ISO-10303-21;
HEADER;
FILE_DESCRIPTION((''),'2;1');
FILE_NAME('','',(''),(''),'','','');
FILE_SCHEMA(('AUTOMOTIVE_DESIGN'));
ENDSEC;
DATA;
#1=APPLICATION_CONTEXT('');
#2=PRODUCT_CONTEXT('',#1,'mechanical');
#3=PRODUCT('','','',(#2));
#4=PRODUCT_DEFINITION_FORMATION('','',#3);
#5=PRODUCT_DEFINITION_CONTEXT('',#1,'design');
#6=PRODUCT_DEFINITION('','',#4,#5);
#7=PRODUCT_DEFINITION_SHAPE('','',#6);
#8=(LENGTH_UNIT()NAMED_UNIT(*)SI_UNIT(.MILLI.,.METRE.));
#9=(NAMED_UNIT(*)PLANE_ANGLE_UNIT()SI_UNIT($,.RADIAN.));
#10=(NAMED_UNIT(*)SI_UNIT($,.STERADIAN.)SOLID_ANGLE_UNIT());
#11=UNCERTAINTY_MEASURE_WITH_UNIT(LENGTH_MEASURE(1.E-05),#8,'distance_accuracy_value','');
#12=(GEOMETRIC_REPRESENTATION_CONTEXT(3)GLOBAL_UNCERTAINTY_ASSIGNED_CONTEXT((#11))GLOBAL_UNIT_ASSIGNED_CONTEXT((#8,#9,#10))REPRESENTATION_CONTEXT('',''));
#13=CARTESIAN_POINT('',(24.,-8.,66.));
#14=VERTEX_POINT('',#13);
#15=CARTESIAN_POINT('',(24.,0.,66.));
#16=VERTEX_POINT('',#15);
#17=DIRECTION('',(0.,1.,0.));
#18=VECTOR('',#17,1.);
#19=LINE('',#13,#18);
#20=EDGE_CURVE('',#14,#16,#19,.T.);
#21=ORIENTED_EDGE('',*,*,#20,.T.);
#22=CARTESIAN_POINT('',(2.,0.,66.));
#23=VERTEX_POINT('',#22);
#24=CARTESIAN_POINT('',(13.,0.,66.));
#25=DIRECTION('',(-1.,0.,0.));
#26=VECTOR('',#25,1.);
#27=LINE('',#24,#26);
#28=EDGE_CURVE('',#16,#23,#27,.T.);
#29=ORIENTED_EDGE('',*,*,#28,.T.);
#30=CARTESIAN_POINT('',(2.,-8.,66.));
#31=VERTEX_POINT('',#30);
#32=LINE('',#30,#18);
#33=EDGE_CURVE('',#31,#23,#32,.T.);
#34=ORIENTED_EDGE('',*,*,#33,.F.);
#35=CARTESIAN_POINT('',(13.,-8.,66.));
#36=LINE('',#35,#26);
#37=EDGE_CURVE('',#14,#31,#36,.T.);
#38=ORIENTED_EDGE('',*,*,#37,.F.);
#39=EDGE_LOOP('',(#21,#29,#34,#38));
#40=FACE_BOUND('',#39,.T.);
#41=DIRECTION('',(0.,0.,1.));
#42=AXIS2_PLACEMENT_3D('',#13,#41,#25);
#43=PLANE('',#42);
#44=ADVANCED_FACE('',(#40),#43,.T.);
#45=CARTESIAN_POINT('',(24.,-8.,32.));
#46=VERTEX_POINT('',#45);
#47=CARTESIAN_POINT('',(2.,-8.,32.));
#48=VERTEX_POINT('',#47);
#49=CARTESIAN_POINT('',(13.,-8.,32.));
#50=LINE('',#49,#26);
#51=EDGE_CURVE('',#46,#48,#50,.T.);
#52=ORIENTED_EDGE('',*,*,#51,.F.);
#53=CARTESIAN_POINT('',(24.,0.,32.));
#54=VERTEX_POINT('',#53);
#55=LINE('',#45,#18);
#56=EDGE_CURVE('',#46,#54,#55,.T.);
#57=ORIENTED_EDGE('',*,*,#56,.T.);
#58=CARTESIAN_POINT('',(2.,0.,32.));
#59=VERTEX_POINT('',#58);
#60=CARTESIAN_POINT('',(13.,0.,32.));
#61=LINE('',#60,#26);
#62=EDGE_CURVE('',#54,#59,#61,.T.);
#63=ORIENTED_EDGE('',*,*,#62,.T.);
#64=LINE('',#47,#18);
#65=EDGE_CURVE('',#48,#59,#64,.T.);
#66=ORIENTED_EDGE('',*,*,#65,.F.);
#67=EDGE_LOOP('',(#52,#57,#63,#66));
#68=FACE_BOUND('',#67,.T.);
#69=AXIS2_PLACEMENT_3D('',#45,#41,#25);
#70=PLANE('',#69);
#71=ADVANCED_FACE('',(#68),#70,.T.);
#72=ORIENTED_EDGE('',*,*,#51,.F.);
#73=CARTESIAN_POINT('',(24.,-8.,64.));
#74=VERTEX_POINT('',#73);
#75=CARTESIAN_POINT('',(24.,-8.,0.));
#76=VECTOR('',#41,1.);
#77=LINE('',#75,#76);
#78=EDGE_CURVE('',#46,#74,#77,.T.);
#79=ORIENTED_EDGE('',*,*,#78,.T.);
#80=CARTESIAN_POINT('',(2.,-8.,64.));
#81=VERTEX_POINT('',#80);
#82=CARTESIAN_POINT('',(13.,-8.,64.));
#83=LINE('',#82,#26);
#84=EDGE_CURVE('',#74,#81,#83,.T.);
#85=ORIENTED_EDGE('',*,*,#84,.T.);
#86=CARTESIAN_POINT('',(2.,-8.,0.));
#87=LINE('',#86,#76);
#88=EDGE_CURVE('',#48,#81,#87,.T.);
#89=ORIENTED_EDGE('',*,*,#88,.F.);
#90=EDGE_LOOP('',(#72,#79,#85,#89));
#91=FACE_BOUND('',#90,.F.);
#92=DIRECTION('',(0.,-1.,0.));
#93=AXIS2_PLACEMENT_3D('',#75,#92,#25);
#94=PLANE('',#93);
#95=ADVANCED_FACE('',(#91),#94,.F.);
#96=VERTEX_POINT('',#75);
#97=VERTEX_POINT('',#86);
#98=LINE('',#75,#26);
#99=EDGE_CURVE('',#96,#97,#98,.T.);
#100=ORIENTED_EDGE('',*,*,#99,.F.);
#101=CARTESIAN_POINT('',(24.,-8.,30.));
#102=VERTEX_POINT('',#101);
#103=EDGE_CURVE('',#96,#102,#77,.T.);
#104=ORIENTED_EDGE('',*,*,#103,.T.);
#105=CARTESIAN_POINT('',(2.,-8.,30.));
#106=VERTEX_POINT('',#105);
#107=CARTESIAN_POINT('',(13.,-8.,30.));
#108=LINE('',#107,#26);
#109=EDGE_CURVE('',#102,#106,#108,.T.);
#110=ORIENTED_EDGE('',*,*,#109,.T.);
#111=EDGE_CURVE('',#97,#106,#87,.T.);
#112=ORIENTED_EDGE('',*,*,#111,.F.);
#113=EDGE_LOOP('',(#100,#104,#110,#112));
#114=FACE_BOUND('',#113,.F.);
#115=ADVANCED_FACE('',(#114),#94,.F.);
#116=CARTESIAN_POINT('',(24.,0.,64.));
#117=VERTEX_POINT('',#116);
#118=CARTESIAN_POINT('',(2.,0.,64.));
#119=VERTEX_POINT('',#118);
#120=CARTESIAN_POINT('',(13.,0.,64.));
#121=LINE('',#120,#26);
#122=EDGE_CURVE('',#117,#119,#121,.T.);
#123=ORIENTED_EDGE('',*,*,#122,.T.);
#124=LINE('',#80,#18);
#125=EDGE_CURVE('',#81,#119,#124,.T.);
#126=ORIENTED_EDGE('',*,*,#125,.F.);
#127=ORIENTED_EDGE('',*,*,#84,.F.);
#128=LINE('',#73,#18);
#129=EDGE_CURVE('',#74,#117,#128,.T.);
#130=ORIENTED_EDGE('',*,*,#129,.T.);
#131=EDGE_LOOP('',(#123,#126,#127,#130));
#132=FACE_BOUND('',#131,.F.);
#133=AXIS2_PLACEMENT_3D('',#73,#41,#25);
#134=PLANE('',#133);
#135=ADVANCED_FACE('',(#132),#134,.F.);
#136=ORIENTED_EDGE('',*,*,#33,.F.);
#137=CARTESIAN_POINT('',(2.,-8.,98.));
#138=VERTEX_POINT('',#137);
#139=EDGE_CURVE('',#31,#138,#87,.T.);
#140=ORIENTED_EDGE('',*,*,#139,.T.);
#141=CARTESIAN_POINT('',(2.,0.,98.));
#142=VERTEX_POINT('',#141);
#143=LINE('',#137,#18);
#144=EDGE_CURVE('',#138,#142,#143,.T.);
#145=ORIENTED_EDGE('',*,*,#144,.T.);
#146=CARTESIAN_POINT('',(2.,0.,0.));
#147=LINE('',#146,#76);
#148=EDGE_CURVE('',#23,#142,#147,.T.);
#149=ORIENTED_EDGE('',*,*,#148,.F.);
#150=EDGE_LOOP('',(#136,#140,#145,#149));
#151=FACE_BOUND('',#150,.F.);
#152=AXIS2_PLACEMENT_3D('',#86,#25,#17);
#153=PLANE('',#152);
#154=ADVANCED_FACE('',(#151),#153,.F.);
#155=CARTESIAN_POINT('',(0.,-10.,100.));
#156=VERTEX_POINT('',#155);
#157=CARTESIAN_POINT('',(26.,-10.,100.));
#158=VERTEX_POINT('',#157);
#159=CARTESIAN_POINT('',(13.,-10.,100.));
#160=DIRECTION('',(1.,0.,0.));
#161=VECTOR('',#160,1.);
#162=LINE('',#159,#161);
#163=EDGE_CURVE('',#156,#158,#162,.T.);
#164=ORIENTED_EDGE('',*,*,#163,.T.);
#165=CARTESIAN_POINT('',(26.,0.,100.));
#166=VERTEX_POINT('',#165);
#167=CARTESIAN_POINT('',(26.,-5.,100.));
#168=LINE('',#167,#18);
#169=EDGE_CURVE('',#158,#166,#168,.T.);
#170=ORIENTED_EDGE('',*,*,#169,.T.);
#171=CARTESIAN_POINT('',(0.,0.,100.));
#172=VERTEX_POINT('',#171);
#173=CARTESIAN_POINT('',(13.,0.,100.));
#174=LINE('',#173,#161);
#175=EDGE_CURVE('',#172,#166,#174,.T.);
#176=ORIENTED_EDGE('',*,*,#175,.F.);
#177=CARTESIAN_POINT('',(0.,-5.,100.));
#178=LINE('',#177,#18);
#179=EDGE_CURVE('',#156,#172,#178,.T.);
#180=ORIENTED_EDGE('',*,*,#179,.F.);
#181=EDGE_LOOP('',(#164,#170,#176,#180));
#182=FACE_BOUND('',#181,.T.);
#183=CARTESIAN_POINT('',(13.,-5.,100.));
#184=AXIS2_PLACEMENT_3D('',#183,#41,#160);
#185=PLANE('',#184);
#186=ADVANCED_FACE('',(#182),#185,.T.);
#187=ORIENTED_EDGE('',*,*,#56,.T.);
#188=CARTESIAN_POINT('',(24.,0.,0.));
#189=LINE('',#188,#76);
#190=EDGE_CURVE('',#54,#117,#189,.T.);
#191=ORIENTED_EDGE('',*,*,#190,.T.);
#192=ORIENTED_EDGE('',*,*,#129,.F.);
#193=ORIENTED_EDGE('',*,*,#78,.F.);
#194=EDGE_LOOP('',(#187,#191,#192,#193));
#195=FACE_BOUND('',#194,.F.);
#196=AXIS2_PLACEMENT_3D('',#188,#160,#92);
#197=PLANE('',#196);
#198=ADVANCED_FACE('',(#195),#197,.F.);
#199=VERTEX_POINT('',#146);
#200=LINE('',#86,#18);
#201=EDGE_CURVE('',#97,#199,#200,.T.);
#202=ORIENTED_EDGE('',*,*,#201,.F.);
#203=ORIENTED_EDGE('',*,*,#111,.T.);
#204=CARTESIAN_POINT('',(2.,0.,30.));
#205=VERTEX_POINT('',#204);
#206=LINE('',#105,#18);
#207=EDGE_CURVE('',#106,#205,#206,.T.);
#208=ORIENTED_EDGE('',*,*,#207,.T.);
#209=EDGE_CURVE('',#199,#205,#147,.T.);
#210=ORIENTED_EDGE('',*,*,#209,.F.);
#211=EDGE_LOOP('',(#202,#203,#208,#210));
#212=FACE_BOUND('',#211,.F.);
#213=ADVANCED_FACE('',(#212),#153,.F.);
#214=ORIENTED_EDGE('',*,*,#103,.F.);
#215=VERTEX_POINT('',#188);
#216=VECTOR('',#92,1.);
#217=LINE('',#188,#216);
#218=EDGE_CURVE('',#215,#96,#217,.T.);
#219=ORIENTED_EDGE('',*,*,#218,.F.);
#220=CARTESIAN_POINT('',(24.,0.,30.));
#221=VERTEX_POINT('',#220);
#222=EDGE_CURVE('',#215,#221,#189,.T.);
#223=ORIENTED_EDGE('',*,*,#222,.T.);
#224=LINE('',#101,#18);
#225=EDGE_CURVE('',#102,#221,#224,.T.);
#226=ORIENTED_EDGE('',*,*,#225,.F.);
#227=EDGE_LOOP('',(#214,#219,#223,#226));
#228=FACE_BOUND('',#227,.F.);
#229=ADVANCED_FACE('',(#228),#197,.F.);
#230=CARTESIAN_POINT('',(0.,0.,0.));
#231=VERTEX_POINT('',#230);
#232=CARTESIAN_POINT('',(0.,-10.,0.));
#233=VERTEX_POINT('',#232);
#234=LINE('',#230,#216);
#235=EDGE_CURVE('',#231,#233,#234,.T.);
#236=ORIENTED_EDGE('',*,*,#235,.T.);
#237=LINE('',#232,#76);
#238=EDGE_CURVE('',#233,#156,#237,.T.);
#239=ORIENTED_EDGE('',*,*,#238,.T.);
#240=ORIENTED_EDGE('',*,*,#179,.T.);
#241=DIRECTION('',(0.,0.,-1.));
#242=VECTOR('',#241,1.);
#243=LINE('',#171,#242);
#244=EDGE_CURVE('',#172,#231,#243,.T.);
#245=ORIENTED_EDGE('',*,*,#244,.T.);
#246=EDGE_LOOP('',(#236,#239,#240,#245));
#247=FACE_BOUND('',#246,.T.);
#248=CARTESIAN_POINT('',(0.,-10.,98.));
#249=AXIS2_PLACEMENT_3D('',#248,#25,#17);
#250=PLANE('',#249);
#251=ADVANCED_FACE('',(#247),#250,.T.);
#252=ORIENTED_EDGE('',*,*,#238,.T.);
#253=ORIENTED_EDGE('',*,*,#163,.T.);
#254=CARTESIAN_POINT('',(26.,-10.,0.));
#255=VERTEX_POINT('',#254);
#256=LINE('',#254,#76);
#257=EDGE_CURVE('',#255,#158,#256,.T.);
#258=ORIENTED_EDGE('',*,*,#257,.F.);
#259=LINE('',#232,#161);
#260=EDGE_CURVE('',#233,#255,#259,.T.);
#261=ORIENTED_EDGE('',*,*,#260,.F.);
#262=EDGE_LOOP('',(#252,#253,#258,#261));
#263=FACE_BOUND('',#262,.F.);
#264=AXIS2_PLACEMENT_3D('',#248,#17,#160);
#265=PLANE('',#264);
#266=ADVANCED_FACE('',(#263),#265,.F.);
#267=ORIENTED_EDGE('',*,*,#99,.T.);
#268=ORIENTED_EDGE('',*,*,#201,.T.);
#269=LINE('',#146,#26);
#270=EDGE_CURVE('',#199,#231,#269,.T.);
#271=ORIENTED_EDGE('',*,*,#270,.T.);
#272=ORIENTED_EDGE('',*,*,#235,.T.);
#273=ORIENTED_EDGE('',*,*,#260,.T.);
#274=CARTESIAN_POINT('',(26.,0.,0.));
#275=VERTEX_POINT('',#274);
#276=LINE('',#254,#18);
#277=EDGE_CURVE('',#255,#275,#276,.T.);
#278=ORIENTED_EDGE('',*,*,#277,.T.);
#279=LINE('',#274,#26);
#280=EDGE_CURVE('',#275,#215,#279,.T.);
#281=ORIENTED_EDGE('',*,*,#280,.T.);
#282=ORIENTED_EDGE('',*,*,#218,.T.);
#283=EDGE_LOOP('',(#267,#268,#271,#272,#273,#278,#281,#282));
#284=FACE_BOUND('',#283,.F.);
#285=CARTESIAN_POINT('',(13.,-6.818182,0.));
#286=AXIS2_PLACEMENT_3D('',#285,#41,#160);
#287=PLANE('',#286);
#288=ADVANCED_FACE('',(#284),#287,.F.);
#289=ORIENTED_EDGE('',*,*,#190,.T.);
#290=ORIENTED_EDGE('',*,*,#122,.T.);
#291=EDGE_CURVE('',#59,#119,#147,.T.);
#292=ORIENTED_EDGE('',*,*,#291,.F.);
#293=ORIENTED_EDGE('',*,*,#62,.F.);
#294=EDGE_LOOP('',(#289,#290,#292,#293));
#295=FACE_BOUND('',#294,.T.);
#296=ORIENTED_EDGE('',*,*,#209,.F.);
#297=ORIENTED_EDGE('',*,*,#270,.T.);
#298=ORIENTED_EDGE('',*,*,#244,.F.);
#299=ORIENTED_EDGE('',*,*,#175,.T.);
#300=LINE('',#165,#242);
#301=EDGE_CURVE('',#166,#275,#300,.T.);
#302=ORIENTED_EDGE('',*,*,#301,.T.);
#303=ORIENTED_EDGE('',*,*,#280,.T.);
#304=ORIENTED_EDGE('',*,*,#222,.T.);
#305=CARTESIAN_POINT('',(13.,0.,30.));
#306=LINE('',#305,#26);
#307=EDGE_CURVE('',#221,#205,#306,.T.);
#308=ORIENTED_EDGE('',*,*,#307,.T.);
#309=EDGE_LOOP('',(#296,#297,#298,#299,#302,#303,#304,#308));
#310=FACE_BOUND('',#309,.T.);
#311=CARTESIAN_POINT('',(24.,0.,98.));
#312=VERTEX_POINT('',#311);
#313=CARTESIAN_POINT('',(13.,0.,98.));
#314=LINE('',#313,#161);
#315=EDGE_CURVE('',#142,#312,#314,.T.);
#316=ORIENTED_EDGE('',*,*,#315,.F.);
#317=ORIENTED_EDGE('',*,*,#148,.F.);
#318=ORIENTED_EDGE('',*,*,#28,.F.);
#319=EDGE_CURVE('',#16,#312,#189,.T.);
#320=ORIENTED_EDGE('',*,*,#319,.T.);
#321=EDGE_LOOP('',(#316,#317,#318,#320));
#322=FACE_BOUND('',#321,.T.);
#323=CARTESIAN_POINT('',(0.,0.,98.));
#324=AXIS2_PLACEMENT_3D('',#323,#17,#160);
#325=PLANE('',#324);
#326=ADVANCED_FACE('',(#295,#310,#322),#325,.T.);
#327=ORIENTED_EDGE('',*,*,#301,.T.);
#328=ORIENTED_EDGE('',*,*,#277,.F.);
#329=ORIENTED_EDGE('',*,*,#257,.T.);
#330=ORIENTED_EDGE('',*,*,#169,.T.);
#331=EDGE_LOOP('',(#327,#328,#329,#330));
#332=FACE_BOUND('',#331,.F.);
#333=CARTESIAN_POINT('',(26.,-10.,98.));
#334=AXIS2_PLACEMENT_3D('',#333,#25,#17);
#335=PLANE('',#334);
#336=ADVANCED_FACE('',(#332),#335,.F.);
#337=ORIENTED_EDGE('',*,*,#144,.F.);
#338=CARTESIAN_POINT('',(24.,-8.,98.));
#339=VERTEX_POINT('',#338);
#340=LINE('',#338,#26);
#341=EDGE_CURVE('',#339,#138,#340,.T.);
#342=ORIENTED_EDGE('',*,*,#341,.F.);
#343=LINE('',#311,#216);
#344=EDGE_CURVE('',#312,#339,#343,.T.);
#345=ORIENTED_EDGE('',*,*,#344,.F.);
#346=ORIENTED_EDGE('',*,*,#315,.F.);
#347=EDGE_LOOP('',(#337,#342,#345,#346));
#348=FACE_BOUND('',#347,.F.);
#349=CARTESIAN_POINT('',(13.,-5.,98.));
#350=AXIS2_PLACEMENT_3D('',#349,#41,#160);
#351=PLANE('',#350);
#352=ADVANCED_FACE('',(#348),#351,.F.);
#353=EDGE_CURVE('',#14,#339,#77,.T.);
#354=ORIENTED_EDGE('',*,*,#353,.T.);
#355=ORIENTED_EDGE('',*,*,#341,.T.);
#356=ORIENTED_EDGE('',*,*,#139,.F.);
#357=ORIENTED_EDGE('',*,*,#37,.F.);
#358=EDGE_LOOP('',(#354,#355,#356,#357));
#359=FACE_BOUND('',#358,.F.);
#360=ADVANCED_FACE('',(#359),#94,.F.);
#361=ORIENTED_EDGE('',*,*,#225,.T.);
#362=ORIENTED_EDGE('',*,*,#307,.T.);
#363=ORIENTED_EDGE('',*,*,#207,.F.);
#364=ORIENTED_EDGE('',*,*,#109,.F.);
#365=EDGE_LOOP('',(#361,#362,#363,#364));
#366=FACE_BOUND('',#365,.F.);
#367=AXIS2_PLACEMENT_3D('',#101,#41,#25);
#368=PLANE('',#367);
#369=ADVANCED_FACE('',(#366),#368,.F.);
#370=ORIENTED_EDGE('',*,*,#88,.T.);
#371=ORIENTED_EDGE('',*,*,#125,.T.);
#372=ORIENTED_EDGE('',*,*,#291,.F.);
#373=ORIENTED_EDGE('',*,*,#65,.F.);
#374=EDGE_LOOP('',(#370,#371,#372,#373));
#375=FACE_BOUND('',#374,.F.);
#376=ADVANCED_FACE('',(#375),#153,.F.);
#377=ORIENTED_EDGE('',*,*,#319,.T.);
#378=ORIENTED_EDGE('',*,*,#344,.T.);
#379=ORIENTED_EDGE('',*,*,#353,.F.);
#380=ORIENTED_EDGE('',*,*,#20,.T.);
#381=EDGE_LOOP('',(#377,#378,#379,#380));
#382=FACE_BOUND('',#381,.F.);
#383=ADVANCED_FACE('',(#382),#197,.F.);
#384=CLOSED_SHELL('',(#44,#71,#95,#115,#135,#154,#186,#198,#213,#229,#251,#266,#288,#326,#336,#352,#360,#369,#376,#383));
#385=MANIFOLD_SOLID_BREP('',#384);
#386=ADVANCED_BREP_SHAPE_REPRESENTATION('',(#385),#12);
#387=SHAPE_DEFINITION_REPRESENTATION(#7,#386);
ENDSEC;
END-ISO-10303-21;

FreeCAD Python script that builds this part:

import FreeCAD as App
import Part
import Sketcher
Q = App.Units.Quantity


def add_polygon(sketch, points):
    """Adds a closed chain of lines whose ends are joined by coincident constraints."""
    first, n = sketch.GeometryCount, len(points)
    for a, b in zip(points, points[1:] + points[:1]):
        sketch.addGeometry(Part.LineSegment(App.Vector(*a, 0), App.Vector(*b, 0)), False)
    for i in range(n):
        sketch.addConstraint(Sketcher.Constraint("Coincident", first + i, 2, first + (i + 1) % n, 1))

doc = App.newDocument("Part")
body = doc.addObject("PartDesign::Body", "Body")

# Sketch on XY plane
sketch1 = body.newObject("Sketcher::SketchObject", "Sketch")
sketch1.AttachmentSupport = (doc.getObject("XY_Plane"), [""])
sketch1.MapMode = "FlatFace"
add_polygon(sketch1, [(2, 0), (0, 0), (0, -10), (26, -10), (26, 0), (24, 0), (24, -8), (2, -8)])  # lines 0-7
sketch1.addConstraint([
    Sketcher.Constraint("Horizontal", 0),
    Sketcher.Constraint("Vertical", 1),
    Sketcher.Constraint("Horizontal", 2),
    Sketcher.Constraint("Vertical", 3),
    Sketcher.Constraint("Horizontal", 4),
    Sketcher.Constraint("Vertical", 5),
    Sketcher.Constraint("Horizontal", 6),
    Sketcher.Constraint("Vertical", 7),
    Sketcher.Constraint("Coincident", 0, 2, -1, 1),
    Sketcher.Constraint("PointOnObject", 3, 2, -1),
    Sketcher.Constraint("Equal", 0, 4),
    Sketcher.Constraint("DistanceX", 0, 2, 0, 1, Q("2 mm")),
    Sketcher.Constraint("DistanceX", 2, 1, 2, 2, Q("26 mm")),
    Sketcher.Constraint("DistanceY", 1, 2, 1, 1, Q("10 mm")),
    Sketcher.Constraint("DistanceY", 5, 2, 5, 1, Q("8 mm")),
])
pad1 = body.newObject("PartDesign::Pad", "Pad")
pad1.Profile = sketch1
pad1.Length = 98

# Sketch on XY plane
sketch2 = body.newObject("Sketcher::SketchObject", "Sketch001")
sketch2.AttachmentSupport = (doc.getObject("XY_Plane"), [""])
sketch2.MapMode = "FlatFace"
sketch2.AttachmentOffset = App.Placement(App.Vector(0, 0, 98), App.Rotation())
add_polygon(sketch2, [(0, 0), (0, -10), (26, -10), (26, 0)])  # lines 0-3
sketch2.addConstraint([
    Sketcher.Constraint("Vertical", 0),
    Sketcher.Constraint("Horizontal", 1),
    Sketcher.Constraint("Vertical", 2),
    Sketcher.Constraint("Horizontal", 3),
    Sketcher.Constraint("Coincident", 3, 2, -1, 1),
    Sketcher.Constraint("DistanceX", 1, 1, 1, 2, Q("26 mm")),
    Sketcher.Constraint("DistanceY", 0, 2, 0, 1, Q("10 mm")),
])
pad2 = body.newObject("PartDesign::Pad", "Pad001")
pad2.Profile = sketch2
pad2.Length = 2

# Sketch on XZ plane
sketch3 = body.newObject("Sketcher::SketchObject", "Sketch002")
sketch3.AttachmentSupport = (doc.getObject("XZ_Plane"), [""])
sketch3.MapMode = "FlatFace"
sketch3.AttachmentOffset = App.Placement(App.Vector(0, 0, 8), App.Rotation())
add_polygon(sketch3, [(24, 66), (24, 64), (2, 64), (2, 66)])  # lines 0-3
add_polygon(sketch3, [(24, 32), (24, 30), (2, 30), (2, 32)])  # lines 4-7
sketch3.addConstraint([
    Sketcher.Constraint("Vertical", 0),
    Sketcher.Constraint("Horizontal", 1),
    Sketcher.Constraint("Vertical", 2),
    Sketcher.Constraint("Horizontal", 3),
    Sketcher.Constraint("Vertical", 4),
    Sketcher.Constraint("Horizontal", 5),
    Sketcher.Constraint("Vertical", 6),
    Sketcher.Constraint("Horizontal", 7),
    Sketcher.Constraint("Vertical", 3, 2, 4, 2),
    Sketcher.Constraint("Vertical", 2, 2, 5, 2),
    Sketcher.Constraint("Equal", 2, 4),
    Sketcher.Constraint("DistanceX", 1, 2, 1, 1, Q("22 mm")),
    Sketcher.Constraint("DistanceY", 0, 2, 0, 1, Q("2 mm")),
    Sketcher.Constraint("DistanceX", -1, 1, 0, 2, Q("24 mm")),
    Sketcher.Constraint("DistanceY", -1, 1, 0, 2, Q("64 mm")),
    Sketcher.Constraint("DistanceY", -1, 1, 4, 2, Q("30 mm")),
])
pad3 = body.newObject("PartDesign::Pad", "Pad002")
pad3.Profile = sketch3
pad3.Length = 8
pad3.Reversed = True

doc.recompute()
